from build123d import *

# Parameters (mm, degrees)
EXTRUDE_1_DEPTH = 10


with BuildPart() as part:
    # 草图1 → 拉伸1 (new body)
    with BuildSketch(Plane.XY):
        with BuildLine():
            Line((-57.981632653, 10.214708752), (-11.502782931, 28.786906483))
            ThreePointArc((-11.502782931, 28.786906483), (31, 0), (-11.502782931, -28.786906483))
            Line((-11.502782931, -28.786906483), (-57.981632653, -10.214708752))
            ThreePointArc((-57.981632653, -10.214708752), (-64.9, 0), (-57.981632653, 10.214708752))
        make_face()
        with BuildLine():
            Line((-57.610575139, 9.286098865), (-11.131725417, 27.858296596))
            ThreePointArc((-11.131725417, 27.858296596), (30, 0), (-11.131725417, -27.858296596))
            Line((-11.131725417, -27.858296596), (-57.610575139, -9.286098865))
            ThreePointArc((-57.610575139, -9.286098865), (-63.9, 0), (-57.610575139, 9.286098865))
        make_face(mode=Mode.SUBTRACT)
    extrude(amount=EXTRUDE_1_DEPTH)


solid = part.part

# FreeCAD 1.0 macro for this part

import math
import FreeCAD as App
import Part
import Sketcher
Q = App.Units.Quantity

doc = App.newDocument("Part")
body = doc.addObject("PartDesign::Body", "Body")

sketch1 = body.newObject("Sketcher::SketchObject", "Sketch")
sketch1.AttachmentSupport = (doc.getObject("XY_Plane"), [""])
sketch1.MapMode = "FlatFace"
sketch1.addGeometry(Part.LineSegment(App.Vector(-12, 29, 0), App.Vector(-58, 10, 0)), False)
sketch1.addGeometry(Part.ArcOfCircle(Part.Circle(App.Vector(-54, 0, 0), App.Vector(0, 0, 1), 11), math.radians(112), math.radians(248)), False)
sketch1.addGeometry(Part.LineSegment(App.Vector(-58, -10, 0), App.Vector(-12, -29, 0)), False)
sketch1.addGeometry(Part.ArcOfCircle(Part.Circle(App.Vector(0, 0, 0), App.Vector(0, 0, 1), 31), math.radians(-112), math.radians(112)), False)
sketch1.addGeometry(Part.LineSegment(App.Vector(-58, 9, 0), App.Vector(-11, 28, 0)), False)
sketch1.addGeometry(Part.ArcOfCircle(Part.Circle(App.Vector(0, 0, 0), App.Vector(0, 0, 1), 30), math.radians(-112), math.radians(112)), False)
sketch1.addGeometry(Part.LineSegment(App.Vector(-11, -28, 0), App.Vector(-58, -9, 0)), False)
sketch1.addGeometry(Part.ArcOfCircle(Part.Circle(App.Vector(-54, 0, 0), App.Vector(0, 0, 1), 10), math.radians(112), math.radians(248)), False)
sketch1.addConstraint(Sketcher.Constraint("Tangent", 0, 2, 1, 1))
sketch1.addConstraint(Sketcher.Constraint("Tangent", 1, 2, 2, 1))
sketch1.addConstraint(Sketcher.Constraint("Tangent", 2, 2, 3, 1))
sketch1.addConstraint(Sketcher.Constraint("Tangent", 3, 2, 0, 1))
sketch1.addConstraint(Sketcher.Constraint("Tangent", 4, 2, 5, 2))
sketch1.addConstraint(Sketcher.Constraint("Tangent", 5, 1, 6, 1))
sketch1.addConstraint(Sketcher.Constraint("Tangent", 6, 2, 7, 2))
sketch1.addConstraint(Sketcher.Constraint("Tangent", 7, 1, 4, 1))
sketch1.addConstraint(Sketcher.Constraint("Coincident", 3, 3, -1, 1))
sketch1.addConstraint(Sketcher.Constraint("Coincident", 5, 3, -1, 1))
sketch1.addConstraint(Sketcher.Constraint("Coincident", 7, 3, 1, 3))
sketch1.addConstraint(Sketcher.Constraint("PointOnObject", 1, 3, -1))
sketch1.addConstraint(Sketcher.Constraint("Parallel", 0, 4))
sketch1.addConstraint(Sketcher.Constraint("Radius", 1, Q("11 mm")))
sketch1.addConstraint(Sketcher.Constraint("Radius", 3, Q("31 mm")))
sketch1.addConstraint(Sketcher.Constraint("Radius", 5, Q("30 mm")))
sketch1.addConstraint(Sketcher.Constraint("DistanceX", 1, 3, -1, 1, Q("53.9 mm")))
pad1 = body.newObject("PartDesign::Pad", "Pad")
pad1.Profile = sketch1
pad1.Length = 10

doc.recompute()
